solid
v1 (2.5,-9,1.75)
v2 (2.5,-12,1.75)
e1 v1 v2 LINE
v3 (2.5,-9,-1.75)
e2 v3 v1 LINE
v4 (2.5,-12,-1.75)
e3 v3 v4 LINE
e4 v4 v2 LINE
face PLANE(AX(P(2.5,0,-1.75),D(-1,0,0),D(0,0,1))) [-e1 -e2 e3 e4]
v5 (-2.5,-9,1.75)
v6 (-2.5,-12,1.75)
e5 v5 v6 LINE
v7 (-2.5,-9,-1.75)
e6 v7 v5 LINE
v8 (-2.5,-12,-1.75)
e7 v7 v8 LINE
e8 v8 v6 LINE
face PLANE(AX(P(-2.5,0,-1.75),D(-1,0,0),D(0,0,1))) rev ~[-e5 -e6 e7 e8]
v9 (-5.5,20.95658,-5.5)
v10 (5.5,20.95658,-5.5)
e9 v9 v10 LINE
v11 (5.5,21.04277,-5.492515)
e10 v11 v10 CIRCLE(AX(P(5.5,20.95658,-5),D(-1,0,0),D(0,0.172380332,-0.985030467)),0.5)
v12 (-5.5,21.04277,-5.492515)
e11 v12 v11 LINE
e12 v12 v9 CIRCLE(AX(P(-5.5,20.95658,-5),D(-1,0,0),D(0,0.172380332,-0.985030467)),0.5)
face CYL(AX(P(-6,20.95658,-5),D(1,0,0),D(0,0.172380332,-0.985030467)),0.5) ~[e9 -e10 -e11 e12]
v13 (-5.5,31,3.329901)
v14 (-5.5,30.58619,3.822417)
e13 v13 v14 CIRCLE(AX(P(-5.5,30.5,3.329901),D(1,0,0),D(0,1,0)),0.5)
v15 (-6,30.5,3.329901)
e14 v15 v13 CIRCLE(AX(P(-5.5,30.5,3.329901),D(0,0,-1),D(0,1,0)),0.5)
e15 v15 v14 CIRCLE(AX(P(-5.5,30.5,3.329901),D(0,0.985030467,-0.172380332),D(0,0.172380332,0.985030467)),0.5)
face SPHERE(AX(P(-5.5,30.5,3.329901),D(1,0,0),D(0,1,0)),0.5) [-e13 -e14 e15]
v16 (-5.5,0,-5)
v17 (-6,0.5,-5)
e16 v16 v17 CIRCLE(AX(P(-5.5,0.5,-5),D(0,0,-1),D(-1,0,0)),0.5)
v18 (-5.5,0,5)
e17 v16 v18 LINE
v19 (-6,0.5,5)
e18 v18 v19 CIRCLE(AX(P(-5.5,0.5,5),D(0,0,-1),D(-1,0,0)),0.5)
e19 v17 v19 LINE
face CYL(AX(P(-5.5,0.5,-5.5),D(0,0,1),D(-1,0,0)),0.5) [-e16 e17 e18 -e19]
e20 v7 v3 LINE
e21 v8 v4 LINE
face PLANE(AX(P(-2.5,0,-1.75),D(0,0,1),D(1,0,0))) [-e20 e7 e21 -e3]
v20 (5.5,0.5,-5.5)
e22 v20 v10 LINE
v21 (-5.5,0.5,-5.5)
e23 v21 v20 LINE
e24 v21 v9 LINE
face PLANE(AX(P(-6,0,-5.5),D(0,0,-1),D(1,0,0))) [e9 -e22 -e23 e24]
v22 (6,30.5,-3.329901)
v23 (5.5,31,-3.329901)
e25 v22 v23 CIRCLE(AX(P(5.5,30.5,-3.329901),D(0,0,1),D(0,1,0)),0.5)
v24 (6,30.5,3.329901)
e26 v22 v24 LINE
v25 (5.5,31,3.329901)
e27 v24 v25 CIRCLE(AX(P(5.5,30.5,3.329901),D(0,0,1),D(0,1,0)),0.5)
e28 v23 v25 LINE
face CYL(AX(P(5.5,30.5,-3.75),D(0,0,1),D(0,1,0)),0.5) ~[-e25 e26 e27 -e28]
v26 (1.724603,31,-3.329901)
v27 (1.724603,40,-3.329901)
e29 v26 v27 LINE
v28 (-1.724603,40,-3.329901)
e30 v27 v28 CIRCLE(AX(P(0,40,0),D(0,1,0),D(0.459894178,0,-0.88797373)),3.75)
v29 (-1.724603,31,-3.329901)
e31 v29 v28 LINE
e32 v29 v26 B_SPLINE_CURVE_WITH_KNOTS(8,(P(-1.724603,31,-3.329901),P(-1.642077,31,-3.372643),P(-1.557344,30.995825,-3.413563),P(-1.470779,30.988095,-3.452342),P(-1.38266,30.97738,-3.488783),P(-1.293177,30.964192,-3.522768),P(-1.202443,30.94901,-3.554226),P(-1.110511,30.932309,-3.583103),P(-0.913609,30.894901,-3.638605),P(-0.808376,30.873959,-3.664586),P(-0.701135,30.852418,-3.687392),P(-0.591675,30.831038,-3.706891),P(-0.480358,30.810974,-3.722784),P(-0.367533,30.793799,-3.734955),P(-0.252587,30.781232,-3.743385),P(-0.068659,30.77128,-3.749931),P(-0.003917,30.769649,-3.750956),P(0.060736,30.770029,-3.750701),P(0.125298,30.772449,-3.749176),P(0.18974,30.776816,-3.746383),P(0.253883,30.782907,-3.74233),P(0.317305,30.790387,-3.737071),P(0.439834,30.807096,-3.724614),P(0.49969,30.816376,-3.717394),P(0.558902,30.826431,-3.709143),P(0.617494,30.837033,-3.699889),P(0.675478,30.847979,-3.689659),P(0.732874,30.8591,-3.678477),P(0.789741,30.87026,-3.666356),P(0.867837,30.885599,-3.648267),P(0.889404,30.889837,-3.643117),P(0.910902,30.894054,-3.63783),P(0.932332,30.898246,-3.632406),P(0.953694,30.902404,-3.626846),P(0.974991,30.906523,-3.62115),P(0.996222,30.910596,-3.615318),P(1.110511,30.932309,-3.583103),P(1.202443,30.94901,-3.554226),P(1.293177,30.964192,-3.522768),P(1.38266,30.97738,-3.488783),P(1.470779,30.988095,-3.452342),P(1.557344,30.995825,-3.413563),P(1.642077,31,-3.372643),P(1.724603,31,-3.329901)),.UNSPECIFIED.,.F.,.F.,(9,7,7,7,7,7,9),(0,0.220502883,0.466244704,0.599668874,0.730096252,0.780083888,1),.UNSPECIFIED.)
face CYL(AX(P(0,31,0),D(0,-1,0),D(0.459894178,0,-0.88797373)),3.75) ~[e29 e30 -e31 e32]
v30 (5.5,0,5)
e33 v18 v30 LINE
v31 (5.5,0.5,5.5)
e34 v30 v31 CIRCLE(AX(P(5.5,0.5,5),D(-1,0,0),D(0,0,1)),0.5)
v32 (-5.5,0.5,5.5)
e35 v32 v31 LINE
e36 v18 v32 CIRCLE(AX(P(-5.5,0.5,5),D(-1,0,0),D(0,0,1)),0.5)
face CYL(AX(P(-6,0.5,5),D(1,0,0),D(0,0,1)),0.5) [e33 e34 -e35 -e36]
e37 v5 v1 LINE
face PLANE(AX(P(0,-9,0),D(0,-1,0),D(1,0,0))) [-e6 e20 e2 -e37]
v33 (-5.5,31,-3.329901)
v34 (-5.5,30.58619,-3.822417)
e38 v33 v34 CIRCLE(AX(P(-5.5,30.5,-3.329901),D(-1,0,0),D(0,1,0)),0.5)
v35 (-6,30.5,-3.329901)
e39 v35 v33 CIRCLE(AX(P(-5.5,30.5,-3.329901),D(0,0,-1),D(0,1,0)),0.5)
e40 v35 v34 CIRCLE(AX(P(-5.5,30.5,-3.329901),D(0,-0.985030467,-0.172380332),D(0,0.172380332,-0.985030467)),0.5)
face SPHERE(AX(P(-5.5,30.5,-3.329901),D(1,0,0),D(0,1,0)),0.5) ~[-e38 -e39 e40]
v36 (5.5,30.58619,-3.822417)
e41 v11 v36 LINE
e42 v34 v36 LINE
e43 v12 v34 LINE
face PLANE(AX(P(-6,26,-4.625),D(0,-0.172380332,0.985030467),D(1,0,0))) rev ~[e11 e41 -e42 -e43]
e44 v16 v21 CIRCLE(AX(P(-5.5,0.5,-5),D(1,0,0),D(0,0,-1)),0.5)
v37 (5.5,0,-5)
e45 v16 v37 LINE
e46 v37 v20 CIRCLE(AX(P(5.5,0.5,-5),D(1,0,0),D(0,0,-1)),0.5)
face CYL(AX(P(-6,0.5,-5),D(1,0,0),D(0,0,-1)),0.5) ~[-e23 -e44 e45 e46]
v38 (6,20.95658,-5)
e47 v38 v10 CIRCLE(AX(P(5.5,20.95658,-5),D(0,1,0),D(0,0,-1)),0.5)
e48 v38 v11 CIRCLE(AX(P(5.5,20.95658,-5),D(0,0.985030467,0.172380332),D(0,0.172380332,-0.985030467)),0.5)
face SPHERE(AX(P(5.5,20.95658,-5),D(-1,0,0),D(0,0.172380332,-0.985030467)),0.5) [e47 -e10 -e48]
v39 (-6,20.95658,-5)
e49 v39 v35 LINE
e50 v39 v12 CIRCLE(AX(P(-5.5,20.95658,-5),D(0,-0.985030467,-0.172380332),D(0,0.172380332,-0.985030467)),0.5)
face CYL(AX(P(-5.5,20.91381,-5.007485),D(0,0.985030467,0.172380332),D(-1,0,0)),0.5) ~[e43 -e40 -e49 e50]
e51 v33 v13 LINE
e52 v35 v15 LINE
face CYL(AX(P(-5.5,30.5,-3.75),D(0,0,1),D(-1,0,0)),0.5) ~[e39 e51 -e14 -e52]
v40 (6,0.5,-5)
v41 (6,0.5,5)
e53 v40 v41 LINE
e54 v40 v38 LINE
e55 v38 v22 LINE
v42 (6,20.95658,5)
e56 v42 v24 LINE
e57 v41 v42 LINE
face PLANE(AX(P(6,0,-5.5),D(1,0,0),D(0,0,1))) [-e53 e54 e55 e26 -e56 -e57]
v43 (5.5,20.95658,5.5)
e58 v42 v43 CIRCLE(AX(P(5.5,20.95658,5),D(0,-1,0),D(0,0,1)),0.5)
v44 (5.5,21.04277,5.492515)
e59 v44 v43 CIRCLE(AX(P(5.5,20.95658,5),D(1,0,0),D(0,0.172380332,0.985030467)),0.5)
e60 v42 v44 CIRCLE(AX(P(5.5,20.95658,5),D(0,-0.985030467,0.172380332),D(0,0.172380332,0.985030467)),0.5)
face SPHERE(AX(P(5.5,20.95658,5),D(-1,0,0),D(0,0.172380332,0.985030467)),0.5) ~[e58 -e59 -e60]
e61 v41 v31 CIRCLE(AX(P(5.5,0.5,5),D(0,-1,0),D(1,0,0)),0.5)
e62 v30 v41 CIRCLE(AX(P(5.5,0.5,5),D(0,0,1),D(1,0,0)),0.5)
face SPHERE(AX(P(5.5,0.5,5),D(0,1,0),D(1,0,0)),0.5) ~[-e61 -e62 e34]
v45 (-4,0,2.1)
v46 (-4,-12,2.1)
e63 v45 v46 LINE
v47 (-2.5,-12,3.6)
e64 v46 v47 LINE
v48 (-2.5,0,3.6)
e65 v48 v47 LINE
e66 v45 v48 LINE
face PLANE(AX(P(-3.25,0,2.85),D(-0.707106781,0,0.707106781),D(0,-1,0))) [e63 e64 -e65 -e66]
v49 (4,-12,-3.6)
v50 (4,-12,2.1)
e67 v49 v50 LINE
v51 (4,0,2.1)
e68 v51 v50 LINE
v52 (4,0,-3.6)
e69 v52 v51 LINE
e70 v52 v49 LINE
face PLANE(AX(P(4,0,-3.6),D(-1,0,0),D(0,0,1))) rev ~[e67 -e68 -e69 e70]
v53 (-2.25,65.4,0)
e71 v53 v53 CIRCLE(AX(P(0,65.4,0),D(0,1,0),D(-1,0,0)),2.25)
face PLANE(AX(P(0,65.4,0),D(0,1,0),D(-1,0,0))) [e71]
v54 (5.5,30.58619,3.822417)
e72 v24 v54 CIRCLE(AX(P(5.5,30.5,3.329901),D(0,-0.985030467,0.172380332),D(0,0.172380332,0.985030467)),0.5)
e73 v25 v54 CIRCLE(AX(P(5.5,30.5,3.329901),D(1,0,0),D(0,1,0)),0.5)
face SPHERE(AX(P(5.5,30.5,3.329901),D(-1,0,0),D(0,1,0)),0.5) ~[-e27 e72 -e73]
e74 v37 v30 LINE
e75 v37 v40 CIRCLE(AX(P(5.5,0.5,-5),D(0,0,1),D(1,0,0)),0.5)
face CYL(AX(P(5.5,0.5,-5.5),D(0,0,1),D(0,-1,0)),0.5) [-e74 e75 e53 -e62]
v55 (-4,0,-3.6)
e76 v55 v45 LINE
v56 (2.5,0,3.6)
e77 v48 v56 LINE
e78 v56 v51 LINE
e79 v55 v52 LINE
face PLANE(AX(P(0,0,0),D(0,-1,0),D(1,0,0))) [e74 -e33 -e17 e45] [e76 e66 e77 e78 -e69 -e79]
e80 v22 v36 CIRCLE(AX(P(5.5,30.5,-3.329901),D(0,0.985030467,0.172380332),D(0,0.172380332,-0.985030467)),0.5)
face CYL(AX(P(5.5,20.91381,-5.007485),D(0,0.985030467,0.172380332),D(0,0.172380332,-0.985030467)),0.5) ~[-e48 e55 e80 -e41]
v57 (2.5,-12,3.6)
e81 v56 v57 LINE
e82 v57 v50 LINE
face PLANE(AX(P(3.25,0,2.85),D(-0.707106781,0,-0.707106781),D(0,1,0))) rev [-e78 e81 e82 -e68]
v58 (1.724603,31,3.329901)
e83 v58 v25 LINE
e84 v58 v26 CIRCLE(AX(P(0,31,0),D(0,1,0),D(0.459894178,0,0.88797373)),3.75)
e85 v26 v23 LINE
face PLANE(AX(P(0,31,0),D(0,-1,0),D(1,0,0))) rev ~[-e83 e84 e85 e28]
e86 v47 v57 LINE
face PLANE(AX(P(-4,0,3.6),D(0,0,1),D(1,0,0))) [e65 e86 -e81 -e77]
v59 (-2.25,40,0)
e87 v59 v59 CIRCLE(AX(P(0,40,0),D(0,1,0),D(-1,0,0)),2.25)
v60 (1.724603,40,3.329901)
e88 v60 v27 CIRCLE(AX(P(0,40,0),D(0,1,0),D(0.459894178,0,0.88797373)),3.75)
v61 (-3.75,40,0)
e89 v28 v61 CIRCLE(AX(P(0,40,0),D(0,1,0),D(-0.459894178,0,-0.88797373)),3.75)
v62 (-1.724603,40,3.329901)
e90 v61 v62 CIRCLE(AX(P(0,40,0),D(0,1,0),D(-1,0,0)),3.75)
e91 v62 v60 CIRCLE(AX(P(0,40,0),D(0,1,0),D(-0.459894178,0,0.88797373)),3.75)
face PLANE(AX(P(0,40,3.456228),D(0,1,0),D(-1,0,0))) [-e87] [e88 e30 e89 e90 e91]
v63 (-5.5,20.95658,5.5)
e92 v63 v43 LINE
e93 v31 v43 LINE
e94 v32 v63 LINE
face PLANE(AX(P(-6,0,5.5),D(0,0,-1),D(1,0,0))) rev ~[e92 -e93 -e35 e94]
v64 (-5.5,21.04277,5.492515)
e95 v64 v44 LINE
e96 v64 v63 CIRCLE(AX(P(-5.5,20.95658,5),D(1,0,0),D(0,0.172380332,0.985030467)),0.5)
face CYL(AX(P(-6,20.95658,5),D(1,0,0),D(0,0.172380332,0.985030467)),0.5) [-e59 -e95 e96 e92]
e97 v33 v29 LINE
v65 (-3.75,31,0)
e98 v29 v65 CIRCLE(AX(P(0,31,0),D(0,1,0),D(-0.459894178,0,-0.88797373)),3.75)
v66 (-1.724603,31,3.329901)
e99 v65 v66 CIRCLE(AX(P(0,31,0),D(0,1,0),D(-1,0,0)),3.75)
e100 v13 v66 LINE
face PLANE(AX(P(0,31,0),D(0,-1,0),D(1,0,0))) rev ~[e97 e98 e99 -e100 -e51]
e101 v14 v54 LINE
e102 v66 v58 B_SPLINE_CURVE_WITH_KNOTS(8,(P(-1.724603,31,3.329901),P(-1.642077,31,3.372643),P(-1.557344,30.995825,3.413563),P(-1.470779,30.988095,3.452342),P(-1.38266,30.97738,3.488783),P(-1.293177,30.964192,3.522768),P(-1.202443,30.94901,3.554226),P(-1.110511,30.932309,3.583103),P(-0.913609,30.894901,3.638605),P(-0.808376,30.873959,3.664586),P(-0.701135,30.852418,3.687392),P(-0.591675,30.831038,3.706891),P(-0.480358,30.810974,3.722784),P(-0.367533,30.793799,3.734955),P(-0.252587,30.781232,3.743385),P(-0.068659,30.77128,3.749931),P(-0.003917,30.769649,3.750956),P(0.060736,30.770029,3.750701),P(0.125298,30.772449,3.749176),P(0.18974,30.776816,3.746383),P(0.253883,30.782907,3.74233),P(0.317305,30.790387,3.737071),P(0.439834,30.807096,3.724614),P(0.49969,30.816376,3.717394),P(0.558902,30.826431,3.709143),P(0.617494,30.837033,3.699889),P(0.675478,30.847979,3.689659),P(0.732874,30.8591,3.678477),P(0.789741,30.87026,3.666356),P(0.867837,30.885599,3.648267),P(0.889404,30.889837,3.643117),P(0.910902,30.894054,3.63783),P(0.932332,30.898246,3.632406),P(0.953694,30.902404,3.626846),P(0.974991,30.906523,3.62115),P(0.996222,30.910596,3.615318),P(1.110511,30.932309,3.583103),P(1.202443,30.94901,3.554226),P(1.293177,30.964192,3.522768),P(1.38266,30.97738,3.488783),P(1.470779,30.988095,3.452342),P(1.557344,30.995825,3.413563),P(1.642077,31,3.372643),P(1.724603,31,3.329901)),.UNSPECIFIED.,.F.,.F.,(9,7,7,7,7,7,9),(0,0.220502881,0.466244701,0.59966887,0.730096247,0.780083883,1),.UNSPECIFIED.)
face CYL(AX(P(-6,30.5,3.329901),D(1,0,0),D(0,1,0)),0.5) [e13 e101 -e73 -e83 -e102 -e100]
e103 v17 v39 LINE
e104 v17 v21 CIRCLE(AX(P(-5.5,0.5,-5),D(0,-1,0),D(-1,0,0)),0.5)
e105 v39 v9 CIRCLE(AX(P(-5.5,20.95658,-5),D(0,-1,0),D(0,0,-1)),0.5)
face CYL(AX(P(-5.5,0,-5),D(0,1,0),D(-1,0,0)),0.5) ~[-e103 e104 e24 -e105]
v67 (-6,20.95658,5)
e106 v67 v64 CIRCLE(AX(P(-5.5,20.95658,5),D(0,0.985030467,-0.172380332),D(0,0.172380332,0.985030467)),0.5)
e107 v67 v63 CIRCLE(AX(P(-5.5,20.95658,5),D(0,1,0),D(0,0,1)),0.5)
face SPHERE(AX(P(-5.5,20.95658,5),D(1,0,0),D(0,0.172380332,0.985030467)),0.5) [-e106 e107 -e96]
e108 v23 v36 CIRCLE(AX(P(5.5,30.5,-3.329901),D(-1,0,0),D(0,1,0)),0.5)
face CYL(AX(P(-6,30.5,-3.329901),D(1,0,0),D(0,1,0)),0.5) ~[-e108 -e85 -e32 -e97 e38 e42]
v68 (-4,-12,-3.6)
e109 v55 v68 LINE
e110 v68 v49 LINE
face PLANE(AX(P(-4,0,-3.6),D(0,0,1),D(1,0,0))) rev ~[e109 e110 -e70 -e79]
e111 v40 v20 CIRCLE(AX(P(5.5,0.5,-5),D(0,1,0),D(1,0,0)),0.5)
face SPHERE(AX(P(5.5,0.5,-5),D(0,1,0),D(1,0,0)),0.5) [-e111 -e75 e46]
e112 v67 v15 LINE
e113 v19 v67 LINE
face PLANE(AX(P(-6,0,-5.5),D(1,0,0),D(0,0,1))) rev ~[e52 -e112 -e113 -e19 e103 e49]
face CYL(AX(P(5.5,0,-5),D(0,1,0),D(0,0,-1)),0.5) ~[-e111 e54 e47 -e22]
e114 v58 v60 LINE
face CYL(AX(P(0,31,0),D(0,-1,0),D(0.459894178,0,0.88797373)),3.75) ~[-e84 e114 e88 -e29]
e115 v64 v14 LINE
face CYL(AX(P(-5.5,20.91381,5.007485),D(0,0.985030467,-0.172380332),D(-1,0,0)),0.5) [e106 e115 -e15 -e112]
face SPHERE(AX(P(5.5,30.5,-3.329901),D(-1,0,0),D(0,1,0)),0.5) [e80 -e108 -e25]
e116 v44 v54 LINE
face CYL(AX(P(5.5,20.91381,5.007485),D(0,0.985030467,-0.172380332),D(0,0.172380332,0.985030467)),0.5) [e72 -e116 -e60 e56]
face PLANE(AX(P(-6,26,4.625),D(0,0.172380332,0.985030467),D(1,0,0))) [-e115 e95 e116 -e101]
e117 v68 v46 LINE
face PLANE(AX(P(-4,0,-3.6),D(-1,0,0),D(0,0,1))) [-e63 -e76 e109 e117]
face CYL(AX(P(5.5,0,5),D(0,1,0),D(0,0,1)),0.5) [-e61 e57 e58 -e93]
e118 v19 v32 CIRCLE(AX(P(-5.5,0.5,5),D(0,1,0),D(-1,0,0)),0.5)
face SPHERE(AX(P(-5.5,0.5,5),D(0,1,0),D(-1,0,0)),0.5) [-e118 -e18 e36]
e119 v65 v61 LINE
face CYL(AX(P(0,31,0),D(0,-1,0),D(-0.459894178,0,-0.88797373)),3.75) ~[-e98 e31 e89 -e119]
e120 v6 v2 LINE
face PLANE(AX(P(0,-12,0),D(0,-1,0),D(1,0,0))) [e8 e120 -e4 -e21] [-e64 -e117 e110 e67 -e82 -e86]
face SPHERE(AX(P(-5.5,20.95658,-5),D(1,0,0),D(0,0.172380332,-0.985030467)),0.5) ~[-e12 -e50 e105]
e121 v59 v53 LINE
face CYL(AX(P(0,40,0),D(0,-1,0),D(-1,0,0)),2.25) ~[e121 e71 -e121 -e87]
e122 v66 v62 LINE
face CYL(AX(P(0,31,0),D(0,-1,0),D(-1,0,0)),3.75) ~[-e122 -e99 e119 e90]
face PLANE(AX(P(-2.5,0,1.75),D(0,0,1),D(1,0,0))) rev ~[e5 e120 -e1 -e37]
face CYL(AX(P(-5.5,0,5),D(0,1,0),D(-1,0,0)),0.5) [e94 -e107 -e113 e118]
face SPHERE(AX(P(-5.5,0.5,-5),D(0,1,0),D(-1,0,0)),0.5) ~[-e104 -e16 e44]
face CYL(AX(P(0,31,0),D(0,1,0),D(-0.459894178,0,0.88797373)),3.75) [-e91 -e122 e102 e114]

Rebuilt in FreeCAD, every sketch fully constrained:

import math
import FreeCAD as App
import Part
import Sketcher
from FreeCAD import Vector
Q = App.Units.Quantity


def edges_at(feature, points):
    """Names of the edges that pass closest to the given points."""
    edges = feature.Shape.Edges
    near = lambda p: min(range(len(edges)), key=lambda i: edges[i].distToShape(Part.Vertex(*p))[0])
    return sorted({f"Edge{near(p) + 1}" for p in points})


def add_polygon(sketch, points):
    """Adds a closed chain of lines whose ends are joined by coincident constraints."""
    first, n = sketch.GeometryCount, len(points)
    for a, b in zip(points, points[1:] + points[:1]):
        sketch.addGeometry(Part.LineSegment(App.Vector(*a, 0), App.Vector(*b, 0)), False)
    for i in range(n):
        sketch.addConstraint(Sketcher.Constraint("Coincident", first + i, 2, first + (i + 1) % n, 1))

doc = App.newDocument("Part")
body = doc.addObject("PartDesign::Body", "Body")

# Sketch on XZ plane
sketch1 = body.newObject("Sketcher::SketchObject", "Sketch")
sketch1.AttachmentSupport = (doc.getObject("XZ_Plane"), [""])
sketch1.MapMode = "FlatFace"
add_polygon(sketch1, [(-4, 3.6), (-4, -3.6), (4, -3.6), (4, 3.6)])  # lines 0-3
add_polygon(sketch1, [(2.5, -1.8), (-2.5, -1.8), (-2.5, 1.8), (2.5, 1.8)])  # lines 4-7
sketch1.addConstraint(Sketcher.Constraint("Vertical", 0))
sketch1.addConstraint(Sketcher.Constraint("Horizontal", 1))
sketch1.addConstraint(Sketcher.Constraint("Vertical", 2))
sketch1.addConstraint(Sketcher.Constraint("Horizontal", 3))
sketch1.addConstraint(Sketcher.Constraint("Horizontal", 4))
sketch1.addConstraint(Sketcher.Constraint("Vertical", 5))
sketch1.addConstraint(Sketcher.Constraint("Horizontal", 6))
sketch1.addConstraint(Sketcher.Constraint("Vertical", 7))
sketch1.addConstraint(Sketcher.Constraint("Symmetric", 0, 2, 2, 2, -1, 1))
sketch1.addConstraint(Sketcher.Constraint("Symmetric", 4, 2, 6, 2, -1, 1))
sketch1.addConstraint(Sketcher.Constraint("DistanceX", 1, 1, 1, 2, Q("8 mm")))
sketch1.addConstraint(Sketcher.Constraint("DistanceX", 4, 2, 4, 1, Q("5 mm")))
sketch1.addConstraint(Sketcher.Constraint("DistanceY", 0, 2, 0, 1, Q("7.2 mm")))
sketch1.addConstraint(Sketcher.Constraint("DistanceY", 5, 1, 5, 2, Q("3.5 mm")))
pad1 = body.newObject("PartDesign::Pad", "Pad")
pad1.Profile = sketch1
pad1.Length = 12

# Sketch on XZ plane
sketch2 = body.newObject("Sketcher::SketchObject", "Sketch001")
sketch2.AttachmentSupport = (doc.getObject("XZ_Plane"), [""])
sketch2.MapMode = "FlatFace"
add_polygon(sketch2, [(-2.5, 1.8), (-2.5, -1.8), (2.5, -1.8), (2.5, 1.8)])  # lines 0-3
sketch2.addConstraint(Sketcher.Constraint("Vertical", 0))
sketch2.addConstraint(Sketcher.Constraint("Horizontal", 1))
sketch2.addConstraint(Sketcher.Constraint("Vertical", 2))
sketch2.addConstraint(Sketcher.Constraint("Horizontal", 3))
sketch2.addConstraint(Sketcher.Constraint("Symmetric", 0, 2, 2, 2, -1, 1))
sketch2.addConstraint(Sketcher.Constraint("DistanceX", 1, 1, 1, 2, Q("5 mm")))
sketch2.addConstraint(Sketcher.Constraint("DistanceY", 0, 2, 0, 1, Q("3.5 mm")))
pad2 = body.newObject("PartDesign::Pad", "Pad001")
pad2.Profile = sketch2
pad2.Length = 9
doc.recompute()

chamfer = body.newObject("PartDesign::Chamfer", "Chamfer")
chamfer.Base = (pad2, edges_at(pad2, [(-4, -6, 3.6), (4, -6, 3.6)]))
chamfer.Size = 1.5

# Sketch on XZ plane
sketch3 = body.newObject("Sketcher::SketchObject", "Sketch002")
sketch3.AttachmentSupport = (doc.getObject("XZ_Plane"), [""])
sketch3.MapMode = "FlatFace"
add_polygon(sketch3, [(-6, 6), (-6, -6), (6, -6), (6, 6)])  # lines 0-3
sketch3.addConstraint(Sketcher.Constraint("Vertical", 0))
sketch3.addConstraint(Sketcher.Constraint("Horizontal", 1))
sketch3.addConstraint(Sketcher.Constraint("Vertical", 2))
sketch3.addConstraint(Sketcher.Constraint("Horizontal", 3))
sketch3.addConstraint(Sketcher.Constraint("Symmetric", 0, 2, 2, 2, -1, 1))
sketch3.addConstraint(Sketcher.Constraint("DistanceX", 1, 1, 1, 2, Q("12 mm")))
sketch3.addConstraint(Sketcher.Constraint("DistanceY", 0, 2, 0, 1, Q("11 mm")))
pad3 = body.newObject("PartDesign::Pad", "Pad002")
pad3.Profile = sketch3
pad3.Length = 31
pad3.Reversed = True
doc.recompute()

chamfer2 = body.newObject("PartDesign::Chamfer", "Chamfer001")
chamfer2.Base = (pad3, edges_at(pad3, [(0, 31, 5.5)]))
chamfer2.ChamferType = "Two distances"
chamfer2.Size = 10
chamfer2.Size2 = 1.75
doc.recompute()

chamfer3 = body.newObject("PartDesign::Chamfer", "Chamfer002")
chamfer3.Base = (chamfer2, edges_at(chamfer2, [(0, 31, -5.5)]))
chamfer3.ChamferType = "Two distances"
chamfer3.Size = 10
chamfer3.Size2 = 1.75
chamfer3.FlipDirection = True
doc.recompute()

fillet = body.newObject("PartDesign::Fillet", "Fillet")
fillet.Base = (chamfer3, edges_at(chamfer3, [
    (-6, 31, 0),
    (-6, 26, -4.625),
    (-6, 26, 4.625),
    (-6, 10.5, -5.5),
    (-6, 10.5, 5.5),
    (-6, 0, 0),
    (6, 31, 0),
    (6, 26, -4.625),
    (6, 26, 4.625),
    (6, 10.5, -5.5),
    (6, 10.5, 5.5),
    (6, 0, 0),
    (0, 21, 5.5),
    (0, 0, 5.5),
    (0, 21, -5.5),
    (0, 0, -5.5),
    (0, 31, -3.75),
    (0, 31, 3.75),
]))
fillet.Radius = 0.5

# Sketch on XZ plane
sketch4 = body.newObject("Sketcher::SketchObject", "Sketch003")
sketch4.AttachmentSupport = (doc.getObject("XZ_Plane"), [""])
sketch4.MapMode = "FlatFace"
sketch4.AttachmentOffset = App.Placement(Vector(0, 0, -31), App.Rotation())
sketch4.addGeometry(Part.ArcOfCircle(Part.Circle(Vector(0, 0, 0), Vector(0, 0, 1), 3.8), math.radians(63), math.radians(117)), False)
sketch4.addGeometry(Part.ArcOfCircle(Part.Circle(Vector(0, 0, 0), Vector(0, 0, 1), 3.8), math.radians(-63), math.radians(63)), False)
sketch4.addGeometry(Part.ArcOfCircle(Part.Circle(Vector(0, 0, 0), Vector(0, 0, 1), 3.8), math.radians(-117), math.radians(-63)), False)
sketch4.addGeometry(Part.ArcOfCircle(Part.Circle(Vector(0, 0, 0), Vector(0, 0, 1), 3.8), math.radians(180), math.radians(243)), False)
sketch4.addGeometry(Part.ArcOfCircle(Part.Circle(Vector(0, 0, 0), Vector(0, 0, 1), 3.8), math.radians(117), math.radians(180)), False)
sketch4.addConstraint(Sketcher.Constraint("Tangent", 0, 1, 1, 2))
sketch4.addConstraint(Sketcher.Constraint("Tangent", 1, 1, 2, 2))
sketch4.addConstraint(Sketcher.Constraint("Tangent", 2, 1, 3, 2))
sketch4.addConstraint(Sketcher.Constraint("Tangent", 3, 1, 4, 2))
sketch4.addConstraint(Sketcher.Constraint("Tangent", 4, 1, 0, 2))
sketch4.addConstraint(Sketcher.Constraint("Coincident", 0, 3, -1, 1))
sketch4.addConstraint(Sketcher.Constraint("Coincident", 2, 3, -1, 1))
sketch4.addConstraint(Sketcher.Constraint("PointOnObject", 3, 1, -1))
sketch4.addConstraint(Sketcher.Constraint("Horizontal", 1, 1, 2, 1))
sketch4.addConstraint(Sketcher.Constraint("Horizontal", 0, 1, 4, 1))
sketch4.addConstraint(Sketcher.Constraint("Vertical", 0, 1, 1, 1))
sketch4.addConstraint(Sketcher.Constraint("Radius", 0, Q("3.75 mm")))
sketch4.addConstraint(Sketcher.Constraint("DistanceY", -1, 1, 0, 1, Q("3.329901 mm")))
pad4 = body.newObject("PartDesign::Pad", "Pad003")
pad4.Profile = sketch4
pad4.Type = "TwoLengths"
pad4.Length = 9
pad4.Length2 = 0.228859
pad4.Reversed = True

# Sketch on XZ plane
sketch5 = body.newObject("Sketcher::SketchObject", "Sketch004")
sketch5.AttachmentSupport = (doc.getObject("XZ_Plane"), [""])
sketch5.MapMode = "FlatFace"
sketch5.AttachmentOffset = App.Placement(Vector(0, 0, -40), App.Rotation())
sketch5.addGeometry(Part.Circle(Vector(0, 0, 0), Vector(0, 0, 1), 2.2), False)
sketch5.addConstraint(Sketcher.Constraint("Coincident", 0, 3, -1, 1))
sketch5.addConstraint(Sketcher.Constraint("Diameter", 0, Q("4.5 mm")))
pad5 = body.newObject("PartDesign::Pad", "Pad004")
pad5.Profile = sketch5
pad5.Length = 25.4
pad5.Reversed = True

doc.recompute()
